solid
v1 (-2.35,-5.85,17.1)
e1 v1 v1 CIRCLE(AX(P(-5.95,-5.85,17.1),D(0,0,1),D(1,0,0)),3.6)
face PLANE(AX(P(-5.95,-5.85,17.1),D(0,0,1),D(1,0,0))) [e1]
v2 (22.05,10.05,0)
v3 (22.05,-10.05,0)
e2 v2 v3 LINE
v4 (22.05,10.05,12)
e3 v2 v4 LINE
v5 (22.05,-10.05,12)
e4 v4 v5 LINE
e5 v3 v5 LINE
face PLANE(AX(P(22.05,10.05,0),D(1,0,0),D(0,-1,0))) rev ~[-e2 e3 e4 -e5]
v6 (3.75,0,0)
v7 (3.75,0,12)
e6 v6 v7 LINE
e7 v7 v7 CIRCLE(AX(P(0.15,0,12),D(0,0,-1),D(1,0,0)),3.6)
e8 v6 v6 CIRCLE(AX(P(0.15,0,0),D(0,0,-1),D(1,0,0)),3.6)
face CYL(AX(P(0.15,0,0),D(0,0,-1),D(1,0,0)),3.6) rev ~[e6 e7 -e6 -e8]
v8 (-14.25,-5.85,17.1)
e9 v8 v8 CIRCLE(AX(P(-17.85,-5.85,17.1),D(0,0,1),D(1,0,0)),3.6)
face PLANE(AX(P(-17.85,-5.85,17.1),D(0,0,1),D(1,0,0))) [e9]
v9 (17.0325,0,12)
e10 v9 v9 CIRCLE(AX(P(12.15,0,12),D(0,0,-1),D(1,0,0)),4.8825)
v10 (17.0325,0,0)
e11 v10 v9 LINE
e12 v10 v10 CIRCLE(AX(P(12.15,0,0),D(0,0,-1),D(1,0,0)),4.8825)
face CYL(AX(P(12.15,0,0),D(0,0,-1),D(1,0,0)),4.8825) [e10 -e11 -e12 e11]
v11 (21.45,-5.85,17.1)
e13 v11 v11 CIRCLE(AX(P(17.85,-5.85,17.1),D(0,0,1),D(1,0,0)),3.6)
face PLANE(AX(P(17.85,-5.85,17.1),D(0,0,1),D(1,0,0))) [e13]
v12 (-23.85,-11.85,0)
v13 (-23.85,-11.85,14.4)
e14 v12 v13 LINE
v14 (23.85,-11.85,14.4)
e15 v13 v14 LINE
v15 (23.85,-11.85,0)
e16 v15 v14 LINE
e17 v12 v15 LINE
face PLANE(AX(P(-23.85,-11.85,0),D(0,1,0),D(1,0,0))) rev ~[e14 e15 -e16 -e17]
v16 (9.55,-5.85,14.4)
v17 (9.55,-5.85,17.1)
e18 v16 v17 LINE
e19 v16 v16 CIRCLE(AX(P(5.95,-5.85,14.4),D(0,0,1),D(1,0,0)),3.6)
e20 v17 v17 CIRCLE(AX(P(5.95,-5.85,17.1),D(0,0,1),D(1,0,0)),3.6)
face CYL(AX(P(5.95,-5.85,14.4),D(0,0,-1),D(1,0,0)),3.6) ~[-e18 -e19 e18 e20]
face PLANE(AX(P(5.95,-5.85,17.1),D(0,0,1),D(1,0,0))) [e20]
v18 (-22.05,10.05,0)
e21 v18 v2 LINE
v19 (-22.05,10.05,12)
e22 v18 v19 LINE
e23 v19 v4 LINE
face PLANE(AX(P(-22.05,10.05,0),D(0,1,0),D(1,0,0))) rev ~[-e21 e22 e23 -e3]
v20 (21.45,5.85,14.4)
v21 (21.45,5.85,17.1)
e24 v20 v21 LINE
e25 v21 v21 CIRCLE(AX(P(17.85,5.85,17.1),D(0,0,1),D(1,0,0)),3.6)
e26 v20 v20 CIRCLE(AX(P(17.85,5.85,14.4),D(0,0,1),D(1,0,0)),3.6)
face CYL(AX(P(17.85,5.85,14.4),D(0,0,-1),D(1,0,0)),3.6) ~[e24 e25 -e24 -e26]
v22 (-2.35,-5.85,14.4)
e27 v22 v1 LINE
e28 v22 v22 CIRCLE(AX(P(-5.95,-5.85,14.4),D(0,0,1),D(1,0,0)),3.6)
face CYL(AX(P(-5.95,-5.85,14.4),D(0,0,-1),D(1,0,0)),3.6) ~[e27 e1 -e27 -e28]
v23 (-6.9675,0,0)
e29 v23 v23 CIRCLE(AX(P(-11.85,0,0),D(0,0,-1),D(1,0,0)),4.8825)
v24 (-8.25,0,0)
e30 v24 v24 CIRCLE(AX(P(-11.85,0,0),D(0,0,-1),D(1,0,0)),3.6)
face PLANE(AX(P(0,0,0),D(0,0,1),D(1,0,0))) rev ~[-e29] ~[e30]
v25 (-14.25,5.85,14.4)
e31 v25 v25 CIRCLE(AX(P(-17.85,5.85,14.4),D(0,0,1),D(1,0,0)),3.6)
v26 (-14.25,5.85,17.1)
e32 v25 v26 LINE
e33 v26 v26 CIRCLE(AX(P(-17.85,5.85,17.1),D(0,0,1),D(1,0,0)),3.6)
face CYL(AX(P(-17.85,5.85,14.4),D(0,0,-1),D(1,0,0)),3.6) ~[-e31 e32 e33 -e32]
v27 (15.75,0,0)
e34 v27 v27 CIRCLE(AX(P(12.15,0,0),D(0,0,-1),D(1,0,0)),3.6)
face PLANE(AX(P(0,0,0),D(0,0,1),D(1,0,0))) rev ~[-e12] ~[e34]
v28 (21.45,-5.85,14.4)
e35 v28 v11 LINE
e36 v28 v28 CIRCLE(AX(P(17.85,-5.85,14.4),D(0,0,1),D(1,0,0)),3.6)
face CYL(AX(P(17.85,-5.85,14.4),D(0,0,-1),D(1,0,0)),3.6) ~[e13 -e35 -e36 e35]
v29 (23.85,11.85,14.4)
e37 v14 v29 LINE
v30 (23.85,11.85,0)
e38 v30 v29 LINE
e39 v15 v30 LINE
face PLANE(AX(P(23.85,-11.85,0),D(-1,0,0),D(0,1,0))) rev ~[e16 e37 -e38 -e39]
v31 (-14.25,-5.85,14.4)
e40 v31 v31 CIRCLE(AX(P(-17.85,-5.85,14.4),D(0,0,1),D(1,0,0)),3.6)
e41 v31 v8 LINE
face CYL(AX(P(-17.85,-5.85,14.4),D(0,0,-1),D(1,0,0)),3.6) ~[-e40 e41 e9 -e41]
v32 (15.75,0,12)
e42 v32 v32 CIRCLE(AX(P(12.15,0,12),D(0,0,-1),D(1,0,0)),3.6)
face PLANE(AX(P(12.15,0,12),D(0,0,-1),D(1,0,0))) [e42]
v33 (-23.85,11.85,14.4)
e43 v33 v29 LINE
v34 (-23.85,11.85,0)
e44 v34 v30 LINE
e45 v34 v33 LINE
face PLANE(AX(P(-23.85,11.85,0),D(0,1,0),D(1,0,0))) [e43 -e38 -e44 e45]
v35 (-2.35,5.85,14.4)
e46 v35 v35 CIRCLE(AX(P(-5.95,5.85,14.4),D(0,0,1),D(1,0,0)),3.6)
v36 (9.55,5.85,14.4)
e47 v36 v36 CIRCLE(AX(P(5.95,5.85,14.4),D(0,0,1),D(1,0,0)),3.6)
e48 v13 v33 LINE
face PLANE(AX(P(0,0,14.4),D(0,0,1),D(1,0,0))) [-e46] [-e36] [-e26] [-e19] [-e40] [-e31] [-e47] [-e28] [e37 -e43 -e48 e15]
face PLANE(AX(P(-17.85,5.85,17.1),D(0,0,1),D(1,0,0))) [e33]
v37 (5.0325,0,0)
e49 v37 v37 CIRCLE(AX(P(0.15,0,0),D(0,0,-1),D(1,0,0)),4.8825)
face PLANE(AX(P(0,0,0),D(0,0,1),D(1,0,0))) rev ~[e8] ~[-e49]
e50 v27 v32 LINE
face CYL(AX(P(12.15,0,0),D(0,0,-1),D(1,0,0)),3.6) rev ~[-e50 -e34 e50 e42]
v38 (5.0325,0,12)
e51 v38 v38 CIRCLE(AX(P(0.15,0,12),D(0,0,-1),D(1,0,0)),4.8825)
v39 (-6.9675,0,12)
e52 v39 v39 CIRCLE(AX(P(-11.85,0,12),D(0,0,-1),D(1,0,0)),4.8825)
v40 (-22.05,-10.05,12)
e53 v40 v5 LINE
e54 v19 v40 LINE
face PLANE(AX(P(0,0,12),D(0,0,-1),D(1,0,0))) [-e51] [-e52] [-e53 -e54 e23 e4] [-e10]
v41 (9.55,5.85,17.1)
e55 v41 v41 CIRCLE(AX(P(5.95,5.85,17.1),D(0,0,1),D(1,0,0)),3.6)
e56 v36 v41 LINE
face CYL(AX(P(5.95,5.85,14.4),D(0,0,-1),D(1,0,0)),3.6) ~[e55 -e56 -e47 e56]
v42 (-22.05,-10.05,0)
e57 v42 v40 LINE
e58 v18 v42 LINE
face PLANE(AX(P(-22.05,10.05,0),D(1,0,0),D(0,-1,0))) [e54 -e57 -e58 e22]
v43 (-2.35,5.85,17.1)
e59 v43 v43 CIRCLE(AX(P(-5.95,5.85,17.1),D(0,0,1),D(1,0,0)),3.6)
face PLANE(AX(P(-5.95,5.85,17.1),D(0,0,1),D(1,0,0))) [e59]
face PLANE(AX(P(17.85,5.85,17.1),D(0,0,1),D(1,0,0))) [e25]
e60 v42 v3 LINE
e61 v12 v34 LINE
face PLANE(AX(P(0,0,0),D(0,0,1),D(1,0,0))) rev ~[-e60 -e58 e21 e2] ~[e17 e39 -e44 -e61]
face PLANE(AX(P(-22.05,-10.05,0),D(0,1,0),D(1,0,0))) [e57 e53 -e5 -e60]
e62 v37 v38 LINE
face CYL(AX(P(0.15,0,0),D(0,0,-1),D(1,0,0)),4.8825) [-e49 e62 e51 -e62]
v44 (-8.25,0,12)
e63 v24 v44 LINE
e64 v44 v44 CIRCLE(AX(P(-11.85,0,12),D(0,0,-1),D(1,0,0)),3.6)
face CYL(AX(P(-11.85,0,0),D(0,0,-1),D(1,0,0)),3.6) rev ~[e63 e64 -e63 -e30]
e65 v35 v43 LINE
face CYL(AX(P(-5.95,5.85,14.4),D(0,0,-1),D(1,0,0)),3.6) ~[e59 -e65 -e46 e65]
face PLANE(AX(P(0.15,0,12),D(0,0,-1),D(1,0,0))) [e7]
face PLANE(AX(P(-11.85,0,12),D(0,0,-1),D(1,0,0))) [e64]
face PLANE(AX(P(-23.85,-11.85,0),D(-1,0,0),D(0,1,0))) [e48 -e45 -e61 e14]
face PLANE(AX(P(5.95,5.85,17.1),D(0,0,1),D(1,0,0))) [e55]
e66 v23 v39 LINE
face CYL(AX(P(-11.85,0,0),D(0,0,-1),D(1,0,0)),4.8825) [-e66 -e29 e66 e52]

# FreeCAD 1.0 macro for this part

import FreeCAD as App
import Part
import Sketcher
from FreeCAD import Vector
Q = App.Units.Quantity

doc = App.newDocument("Part")
body = doc.addObject("PartDesign::Body", "Body")

# Sketch on XY plane
sketch1 = body.newObject("Sketcher::SketchObject", "Sketch")
sketch1.AttachmentSupport = (doc.getObject("XY_Plane"), [""])
sketch1.MapMode = "FlatFace"
sketch1.addGeometry([
    Part.LineSegment(Vector(-24, 12, 0), Vector(-24, -12, 0)),
    Part.LineSegment(Vector(-24, -12, 0), Vector(24, -12, 0)),
    Part.LineSegment(Vector(24, -12, 0), Vector(24, 12, 0)),
    Part.LineSegment(Vector(24, 12, 0), Vector(-24, 12, 0)),
], False)
sketch1.addConstraint([
    Sketcher.Constraint("Coincident", 0, 2, 1, 1),
    Sketcher.Constraint("Coincident", 1, 2, 2, 1),
    Sketcher.Constraint("Coincident", 2, 2, 3, 1),
    Sketcher.Constraint("Coincident", 3, 2, 0, 1),
    Sketcher.Constraint("Vertical", 0),
    Sketcher.Constraint("Horizontal", 1),
    Sketcher.Constraint("Vertical", 2),
    Sketcher.Constraint("Horizontal", 3),
    Sketcher.Constraint("Symmetric", 0, 2, 2, 2, -1, 1),
    Sketcher.Constraint("DistanceX", 1, 1, 1, 2, Q("47.7 mm")),
    Sketcher.Constraint("DistanceY", 0, 2, 0, 1, Q("23.7 mm")),
])
pad1 = body.newObject("PartDesign::Pad", "Pad")
pad1.Profile = sketch1
pad1.Length = 14.4

# Sketch on XY plane
sketch2 = body.newObject("Sketcher::SketchObject", "Sketch001")
sketch2.AttachmentSupport = (doc.getObject("XY_Plane"), [""])
sketch2.MapMode = "FlatFace"
sketch2.AttachmentOffset = App.Placement(Vector(0, 0, 14.4), App.Rotation())
sketch2.addGeometry([
    Part.Circle(Vector(-17.9, -5.8, 0), Vector(0, 0, 1), 3.6),
    Part.Circle(Vector(-17.9, 5.8, 0), Vector(0, 0, 1), 3.6),
], False)
sketch2.addConstraint([
    Sketcher.Constraint("Equal", 0, 1),
    Sketcher.Constraint("Symmetric", 0, 3, 1, 3, -1),
    Sketcher.Constraint("Diameter", 0, Q("7.2 mm")),
    Sketcher.Constraint("DistanceY", 0, 3, 1, 3, Q("11.7 mm")),
    Sketcher.Constraint("DistanceX", 0, 3, -1, 1, Q("17.85 mm")),
])
pad2 = body.newObject("PartDesign::Pad", "Pad001")
pad2.Profile = sketch2
pad2.Length = 2.7
doc.recompute()

linearpattern = body.newObject("PartDesign::LinearPattern", "LinearPattern")
linearpattern.Originals = [pad2]
linearpattern.Direction = (doc.getObject("X_Axis"), [""])
linearpattern.Mode = "offset"
linearpattern.Offset = 11.9
linearpattern.Occurrences = 4
body.Tip = linearpattern

# Sketch on XY plane
sketch3 = body.newObject("Sketcher::SketchObject", "Sketch002")
sketch3.AttachmentSupport = (doc.getObject("XY_Plane"), [""])
sketch3.MapMode = "FlatFace"
sketch3.addGeometry([
    Part.LineSegment(Vector(-22.1, -10.1, 0), Vector(-22.1, 10.1, 0)),  # 0
    Part.LineSegment(Vector(-22.1, 10.1, 0), Vector(22.1, 10.1, 0)),  # 1
    Part.LineSegment(Vector(22.1, 10.1, 0), Vector(22.1, -10.1, 0)),  # 2
    Part.LineSegment(Vector(22.1, -10.1, 0), Vector(-22.1, -10.1, 0)),  # 3
    Part.Circle(Vector(-11.8, 0, 0), Vector(0, 0, 1), 4.9),  # 4
    Part.Circle(Vector(0.1, 0, 0), Vector(0, 0, 1), 4.9),  # 5
    Part.Circle(Vector(12.2, 0, 0), Vector(0, 0, 1), 4.9),  # 6
    Part.Circle(Vector(-11.8, 0, 0), Vector(0, 0, 1), 3.6),  # 7
    Part.Circle(Vector(0.1, 0, 0), Vector(0, 0, 1), 3.6),  # 8
    Part.Circle(Vector(12.2, 0, 0), Vector(0, 0, 1), 3.6),  # 9
], False)
sketch3.addConstraint([
    Sketcher.Constraint("Coincident", 0, 2, 1, 1),
    Sketcher.Constraint("Coincident", 1, 2, 2, 1),
    Sketcher.Constraint("Coincident", 2, 2, 3, 1),
    Sketcher.Constraint("Coincident", 3, 2, 0, 1),
    Sketcher.Constraint("Vertical", 0),
    Sketcher.Constraint("Horizontal", 1),
    Sketcher.Constraint("Vertical", 2),
    Sketcher.Constraint("Horizontal", 3),
    Sketcher.Constraint("Coincident", 7, 3, 4, 3),
    Sketcher.Constraint("Coincident", 8, 3, 5, 3),
    Sketcher.Constraint("Coincident", 9, 3, 6, 3),
    Sketcher.Constraint("Equal", 4, 5),
    Sketcher.Constraint("Equal", 5, 6),
    Sketcher.Constraint("Equal", 7, 8),
    Sketcher.Constraint("Equal", 8, 9),
    Sketcher.Constraint("Symmetric", 0, 2, 2, 2, -1, 1),
    Sketcher.Constraint("PointOnObject", 4, 3, -1),
    Sketcher.Constraint("PointOnObject", 5, 3, -1),
    Sketcher.Constraint("PointOnObject", 6, 3, -1),
    Sketcher.Constraint("Diameter", 7, Q("7.2 mm")),
    Sketcher.Constraint("Diameter", 4, Q("9.765 mm")),
    Sketcher.Constraint("DistanceX", 1, 1, 1, 2, Q("44.1 mm")),
    Sketcher.Constraint("DistanceY", 0, 1, 0, 2, Q("20.1 mm")),
    Sketcher.Constraint("DistanceX", 4, 3, 5, 3, Q("12 mm")),
    Sketcher.Constraint("DistanceX", 5, 3, 6, 3, Q("12 mm")),
    Sketcher.Constraint("DistanceX", 0, 2, 4, 3, Q("10.2 mm")),
])
pocket1 = body.newObject("PartDesign::Pocket", "Pocket")
pocket1.Profile = sketch3
pocket1.Length = 12
pocket1.Reversed = True

doc.recompute()
